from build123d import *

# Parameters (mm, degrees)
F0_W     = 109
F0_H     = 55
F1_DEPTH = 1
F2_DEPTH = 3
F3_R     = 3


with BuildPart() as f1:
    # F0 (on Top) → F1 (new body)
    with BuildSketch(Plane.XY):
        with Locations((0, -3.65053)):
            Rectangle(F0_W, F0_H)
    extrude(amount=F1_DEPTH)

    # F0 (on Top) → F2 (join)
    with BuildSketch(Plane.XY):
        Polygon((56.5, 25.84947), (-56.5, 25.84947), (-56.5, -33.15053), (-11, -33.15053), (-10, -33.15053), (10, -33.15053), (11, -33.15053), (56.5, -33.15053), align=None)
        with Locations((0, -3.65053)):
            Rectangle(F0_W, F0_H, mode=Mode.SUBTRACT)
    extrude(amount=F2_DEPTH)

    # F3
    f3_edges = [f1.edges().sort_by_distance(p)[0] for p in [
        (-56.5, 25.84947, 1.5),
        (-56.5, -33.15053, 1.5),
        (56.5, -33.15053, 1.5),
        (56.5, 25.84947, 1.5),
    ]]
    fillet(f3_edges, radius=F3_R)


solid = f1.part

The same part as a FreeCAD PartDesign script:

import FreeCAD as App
import Part
import Sketcher


def edges_at(feature, points):
    """Names of the edges that pass closest to the given points."""
    edges = feature.Shape.Edges
    near = lambda p: min(range(len(edges)), key=lambda i: edges[i].distToShape(Part.Vertex(*p))[0])
    return sorted({f"Edge{near(p) + 1}" for p in points})


def add_polygon(sketch, points):
    """Adds a closed chain of lines whose ends are joined by coincident constraints."""
    first, n = sketch.GeometryCount, len(points)
    for a, b in zip(points, points[1:] + points[:1]):
        sketch.addGeometry(Part.LineSegment(App.Vector(*a, 0), App.Vector(*b, 0)), False)
    for i in range(n):
        sketch.addConstraint(Sketcher.Constraint("Coincident", first + i, 2, first + (i + 1) % n, 1))

doc = App.newDocument("Part")
params = doc.addObject("Spreadsheet::Sheet", "Params")
for row, (alias, value) in enumerate([
    ("sketch1_width", "109 mm"),
    ("sketch1_height", "55 mm"),
    ("pad1_length", "1 mm"),
    ("sketch2_width", "113 mm"),
    ("sketch2_width2", "109 mm"),
    ("sketch2_height", "59 mm"),
    ("sketch2_height2", "55 mm"),
    ("pad2_length", "3 mm"),
    ("fillet_radius", "3 mm"),
], start=1):
    params.set(f"A{row}", alias)
    params.set(f"B{row}", "=" + value)
    params.setAlias(f"B{row}", alias)

body = doc.addObject("PartDesign::Body", "Body")

# Sketch on XY plane
sketch1 = body.newObject("Sketcher::SketchObject", "Sketch")
sketch1.AttachmentSupport = (doc.getObject("XY_Plane"), [""])
sketch1.MapMode = "FlatFace"
add_polygon(sketch1, [(-54, 24), (-54, -31), (54, -31), (54, 24)])  # lines 0-3
sketch1.addConstraint(Sketcher.Constraint("Vertical", 0))
sketch1.addConstraint(Sketcher.Constraint("Horizontal", 1))
sketch1.addConstraint(Sketcher.Constraint("Vertical", 2))
sketch1.addConstraint(Sketcher.Constraint("Horizontal", 3))
sketch1.addConstraint(Sketcher.Constraint("DistanceX", 1, 1, 1, 2, 109.0))
sketch1.addConstraint(Sketcher.Constraint("DistanceY", 0, 2, 0, 1, 55.0))
sketch1.addConstraint(Sketcher.Constraint("DistanceX", 0, 2, -1, 1, 54.5))
sketch1.addConstraint(Sketcher.Constraint("DistanceY", 0, 2, -1, 1, 31.15053))
sketch1.setExpression("Constraints[8]", "Params.sketch1_width")
sketch1.setExpression("Constraints[9]", "Params.sketch1_height")
pad1 = body.newObject("PartDesign::Pad", "Pad")
pad1.Profile = sketch1
pad1.setExpression("Length", "Params.pad1_length")

# Sketch on XY plane
sketch2 = body.newObject("Sketcher::SketchObject", "Sketch001")
sketch2.AttachmentSupport = (doc.getObject("XY_Plane"), [""])
sketch2.MapMode = "FlatFace"
add_polygon(sketch2, [(56, 26), (-56, 26), (-56, -33), (56, -33)])  # lines 0-3
add_polygon(sketch2, [(54, -31), (-54, -31), (-54, 24), (54, 24)])  # lines 4-7
sketch2.addConstraint(Sketcher.Constraint("Horizontal", 0))
sketch2.addConstraint(Sketcher.Constraint("Vertical", 1))
sketch2.addConstraint(Sketcher.Constraint("Horizontal", 2))
sketch2.addConstraint(Sketcher.Constraint("Vertical", 3))
sketch2.addConstraint(Sketcher.Constraint("Horizontal", 4))
sketch2.addConstraint(Sketcher.Constraint("Vertical", 5))
sketch2.addConstraint(Sketcher.Constraint("Horizontal", 6))
sketch2.addConstraint(Sketcher.Constraint("Vertical", 7))
sketch2.addConstraint(Sketcher.Constraint("DistanceX", 0, 2, 0, 1, 113.0))
sketch2.addConstraint(Sketcher.Constraint("DistanceX", 4, 2, 4, 1, 109.0))
sketch2.addConstraint(Sketcher.Constraint("DistanceY", 1, 2, 1, 1, 59.0))
sketch2.addConstraint(Sketcher.Constraint("DistanceY", 5, 1, 5, 2, 55.0))
sketch2.addConstraint(Sketcher.Constraint("DistanceX", 1, 2, 4, 2, 2.0))
sketch2.addConstraint(Sketcher.Constraint("DistanceY", 1, 2, 4, 2, 2.0))
sketch2.addConstraint(Sketcher.Constraint("DistanceX", 0, 2, -1, 1, 56.5))
sketch2.addConstraint(Sketcher.Constraint("DistanceY", -1, 1, 0, 2, 25.84947))
sketch2.setExpression("Constraints[16]", "Params.sketch2_width")
sketch2.setExpression("Constraints[17]", "Params.sketch2_width2")
sketch2.setExpression("Constraints[18]", "Params.sketch2_height")
sketch2.setExpression("Constraints[19]", "Params.sketch2_height2")
pad2 = body.newObject("PartDesign::Pad", "Pad001")
pad2.Profile = sketch2
pad2.setExpression("Length", "Params.pad2_length")
doc.recompute()

fillet = body.newObject("PartDesign::Fillet", "Fillet")
fillet.Base = (pad2, edges_at(pad2, [
    (-56.5, 25.849, 1.5),
    (-56.5, -33.151, 1.5),
    (56.5, -33.151, 1.5),
    (56.5, 25.849, 1.5),
]))
fillet.setExpression("Radius", "Params.fillet_radius")

doc.recompute()
